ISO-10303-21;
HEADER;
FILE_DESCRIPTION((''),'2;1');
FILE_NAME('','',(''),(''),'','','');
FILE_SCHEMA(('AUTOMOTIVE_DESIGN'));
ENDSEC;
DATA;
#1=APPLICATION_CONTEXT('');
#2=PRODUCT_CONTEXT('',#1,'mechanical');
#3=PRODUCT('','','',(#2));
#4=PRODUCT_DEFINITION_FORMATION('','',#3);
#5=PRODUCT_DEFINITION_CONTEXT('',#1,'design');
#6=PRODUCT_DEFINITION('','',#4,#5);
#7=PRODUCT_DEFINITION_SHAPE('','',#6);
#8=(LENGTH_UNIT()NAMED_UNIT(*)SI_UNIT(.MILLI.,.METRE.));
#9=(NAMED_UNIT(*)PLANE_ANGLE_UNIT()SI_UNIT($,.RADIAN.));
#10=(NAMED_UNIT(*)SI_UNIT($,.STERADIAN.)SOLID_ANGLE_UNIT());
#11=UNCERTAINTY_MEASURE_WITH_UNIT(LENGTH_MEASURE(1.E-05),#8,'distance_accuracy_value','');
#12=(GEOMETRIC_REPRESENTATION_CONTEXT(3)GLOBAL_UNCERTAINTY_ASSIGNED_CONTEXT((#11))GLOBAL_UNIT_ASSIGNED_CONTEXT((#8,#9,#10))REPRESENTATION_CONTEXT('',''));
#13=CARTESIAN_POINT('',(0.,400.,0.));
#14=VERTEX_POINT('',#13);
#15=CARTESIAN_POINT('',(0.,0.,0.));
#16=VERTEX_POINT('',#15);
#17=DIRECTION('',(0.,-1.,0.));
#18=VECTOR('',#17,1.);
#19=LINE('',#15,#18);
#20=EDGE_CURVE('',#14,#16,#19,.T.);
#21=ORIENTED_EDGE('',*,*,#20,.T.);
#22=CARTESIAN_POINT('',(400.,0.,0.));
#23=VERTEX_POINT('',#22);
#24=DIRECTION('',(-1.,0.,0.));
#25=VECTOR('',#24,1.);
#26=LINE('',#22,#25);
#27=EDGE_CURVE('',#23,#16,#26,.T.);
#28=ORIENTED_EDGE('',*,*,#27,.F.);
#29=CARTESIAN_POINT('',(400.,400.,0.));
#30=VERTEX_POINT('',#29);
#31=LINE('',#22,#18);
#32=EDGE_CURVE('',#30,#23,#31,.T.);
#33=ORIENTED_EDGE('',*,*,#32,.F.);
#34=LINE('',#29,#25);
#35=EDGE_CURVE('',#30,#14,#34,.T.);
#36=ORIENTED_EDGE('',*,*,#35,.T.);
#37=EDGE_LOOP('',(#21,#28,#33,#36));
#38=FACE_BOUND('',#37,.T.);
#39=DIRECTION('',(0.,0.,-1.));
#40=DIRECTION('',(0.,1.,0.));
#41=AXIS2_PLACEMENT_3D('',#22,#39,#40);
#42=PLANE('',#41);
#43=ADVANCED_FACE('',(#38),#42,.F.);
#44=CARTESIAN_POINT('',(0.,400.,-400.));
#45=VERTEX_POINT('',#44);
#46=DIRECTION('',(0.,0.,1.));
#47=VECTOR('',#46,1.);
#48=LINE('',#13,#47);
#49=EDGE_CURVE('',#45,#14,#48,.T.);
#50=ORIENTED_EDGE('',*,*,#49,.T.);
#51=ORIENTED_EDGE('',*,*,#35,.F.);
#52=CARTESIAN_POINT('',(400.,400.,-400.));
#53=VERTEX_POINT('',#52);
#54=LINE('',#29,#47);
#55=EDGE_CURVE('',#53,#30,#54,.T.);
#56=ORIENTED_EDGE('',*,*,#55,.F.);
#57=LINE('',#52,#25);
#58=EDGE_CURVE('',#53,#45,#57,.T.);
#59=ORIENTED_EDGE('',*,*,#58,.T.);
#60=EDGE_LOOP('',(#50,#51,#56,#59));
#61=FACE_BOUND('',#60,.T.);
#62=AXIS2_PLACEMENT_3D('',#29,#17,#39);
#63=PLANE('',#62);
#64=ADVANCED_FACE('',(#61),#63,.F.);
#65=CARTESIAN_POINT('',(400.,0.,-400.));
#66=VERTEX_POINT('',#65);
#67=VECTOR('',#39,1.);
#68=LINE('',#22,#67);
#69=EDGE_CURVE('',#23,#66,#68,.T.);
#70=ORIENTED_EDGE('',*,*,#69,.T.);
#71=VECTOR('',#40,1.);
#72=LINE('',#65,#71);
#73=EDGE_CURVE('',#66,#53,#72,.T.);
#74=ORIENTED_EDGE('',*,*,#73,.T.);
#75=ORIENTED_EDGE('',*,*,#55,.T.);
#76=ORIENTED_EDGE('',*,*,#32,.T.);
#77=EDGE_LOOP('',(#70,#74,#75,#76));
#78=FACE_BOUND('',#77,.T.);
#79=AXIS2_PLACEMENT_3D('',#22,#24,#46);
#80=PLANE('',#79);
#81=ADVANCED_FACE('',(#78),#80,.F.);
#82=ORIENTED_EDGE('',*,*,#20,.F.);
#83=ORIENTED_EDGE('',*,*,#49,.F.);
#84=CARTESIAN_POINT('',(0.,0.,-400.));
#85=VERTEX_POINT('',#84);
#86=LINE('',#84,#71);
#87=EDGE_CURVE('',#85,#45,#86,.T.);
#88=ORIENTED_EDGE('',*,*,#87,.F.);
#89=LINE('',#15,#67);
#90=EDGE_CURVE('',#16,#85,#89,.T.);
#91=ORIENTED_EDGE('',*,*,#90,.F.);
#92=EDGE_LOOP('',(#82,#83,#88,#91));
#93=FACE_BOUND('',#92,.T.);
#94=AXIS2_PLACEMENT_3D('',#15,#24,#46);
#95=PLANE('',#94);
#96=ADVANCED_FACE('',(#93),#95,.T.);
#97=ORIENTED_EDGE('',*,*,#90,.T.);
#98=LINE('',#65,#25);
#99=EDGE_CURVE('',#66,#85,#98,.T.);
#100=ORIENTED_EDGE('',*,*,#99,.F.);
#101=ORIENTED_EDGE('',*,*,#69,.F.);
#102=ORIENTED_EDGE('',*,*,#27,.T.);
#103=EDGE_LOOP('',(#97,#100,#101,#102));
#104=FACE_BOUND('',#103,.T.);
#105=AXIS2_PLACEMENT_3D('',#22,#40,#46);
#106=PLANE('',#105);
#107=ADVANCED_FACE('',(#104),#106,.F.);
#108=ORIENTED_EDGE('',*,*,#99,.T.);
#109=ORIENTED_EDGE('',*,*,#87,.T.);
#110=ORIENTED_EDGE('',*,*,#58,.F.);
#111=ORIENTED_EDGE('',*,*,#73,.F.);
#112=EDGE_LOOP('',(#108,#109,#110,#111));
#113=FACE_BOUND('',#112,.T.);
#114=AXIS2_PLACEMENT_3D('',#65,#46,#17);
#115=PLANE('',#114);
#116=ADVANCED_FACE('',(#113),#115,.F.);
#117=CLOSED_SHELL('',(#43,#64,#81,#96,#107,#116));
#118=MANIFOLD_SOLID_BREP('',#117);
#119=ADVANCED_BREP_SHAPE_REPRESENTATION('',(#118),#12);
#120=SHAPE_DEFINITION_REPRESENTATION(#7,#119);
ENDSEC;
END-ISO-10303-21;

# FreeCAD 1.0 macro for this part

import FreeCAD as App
import Part
import Sketcher


def add_polygon(sketch, points):
    """Adds a closed chain of lines whose ends are joined by coincident constraints."""
    first, n = sketch.GeometryCount, len(points)
    for a, b in zip(points, points[1:] + points[:1]):
        sketch.addGeometry(Part.LineSegment(App.Vector(*a, 0), App.Vector(*b, 0)), False)
    for i in range(n):
        sketch.addConstraint(Sketcher.Constraint("Coincident", first + i, 2, first + (i + 1) % n, 1))

doc = App.newDocument("Part")
body = doc.addObject("PartDesign::Body", "Body")

# Sketch on YZ plane
sketch1 = doc.addObject("Sketcher::SketchObject", "Sketch")
body.addObject(sketch1)
sketch1.AttachmentSupport = (doc.YZ_Plane, [""])
sketch1.MapMode = "FlatFace"
add_polygon(sketch1, [(400, 0), (0, 0), (0, -400), (400, -400)])  # lines 0-3
sketch1.addConstraint([
    Sketcher.Constraint("Horizontal", 0),
    Sketcher.Constraint("Vertical", 1),
    Sketcher.Constraint("Horizontal", 2),
    Sketcher.Constraint("Vertical", 3),
    Sketcher.Constraint("Coincident", 0, 2, -1, 1),
    Sketcher.Constraint("Equal", 2, 1),
    Sketcher.Constraint("DistanceX", 0, 2, 0, 1, 400.0),
])
pad1 = doc.addObject("PartDesign::Pad", "Pad")
body.addObject(pad1)
pad1.Profile = sketch1
pad1.Length = 400

doc.recompute()
